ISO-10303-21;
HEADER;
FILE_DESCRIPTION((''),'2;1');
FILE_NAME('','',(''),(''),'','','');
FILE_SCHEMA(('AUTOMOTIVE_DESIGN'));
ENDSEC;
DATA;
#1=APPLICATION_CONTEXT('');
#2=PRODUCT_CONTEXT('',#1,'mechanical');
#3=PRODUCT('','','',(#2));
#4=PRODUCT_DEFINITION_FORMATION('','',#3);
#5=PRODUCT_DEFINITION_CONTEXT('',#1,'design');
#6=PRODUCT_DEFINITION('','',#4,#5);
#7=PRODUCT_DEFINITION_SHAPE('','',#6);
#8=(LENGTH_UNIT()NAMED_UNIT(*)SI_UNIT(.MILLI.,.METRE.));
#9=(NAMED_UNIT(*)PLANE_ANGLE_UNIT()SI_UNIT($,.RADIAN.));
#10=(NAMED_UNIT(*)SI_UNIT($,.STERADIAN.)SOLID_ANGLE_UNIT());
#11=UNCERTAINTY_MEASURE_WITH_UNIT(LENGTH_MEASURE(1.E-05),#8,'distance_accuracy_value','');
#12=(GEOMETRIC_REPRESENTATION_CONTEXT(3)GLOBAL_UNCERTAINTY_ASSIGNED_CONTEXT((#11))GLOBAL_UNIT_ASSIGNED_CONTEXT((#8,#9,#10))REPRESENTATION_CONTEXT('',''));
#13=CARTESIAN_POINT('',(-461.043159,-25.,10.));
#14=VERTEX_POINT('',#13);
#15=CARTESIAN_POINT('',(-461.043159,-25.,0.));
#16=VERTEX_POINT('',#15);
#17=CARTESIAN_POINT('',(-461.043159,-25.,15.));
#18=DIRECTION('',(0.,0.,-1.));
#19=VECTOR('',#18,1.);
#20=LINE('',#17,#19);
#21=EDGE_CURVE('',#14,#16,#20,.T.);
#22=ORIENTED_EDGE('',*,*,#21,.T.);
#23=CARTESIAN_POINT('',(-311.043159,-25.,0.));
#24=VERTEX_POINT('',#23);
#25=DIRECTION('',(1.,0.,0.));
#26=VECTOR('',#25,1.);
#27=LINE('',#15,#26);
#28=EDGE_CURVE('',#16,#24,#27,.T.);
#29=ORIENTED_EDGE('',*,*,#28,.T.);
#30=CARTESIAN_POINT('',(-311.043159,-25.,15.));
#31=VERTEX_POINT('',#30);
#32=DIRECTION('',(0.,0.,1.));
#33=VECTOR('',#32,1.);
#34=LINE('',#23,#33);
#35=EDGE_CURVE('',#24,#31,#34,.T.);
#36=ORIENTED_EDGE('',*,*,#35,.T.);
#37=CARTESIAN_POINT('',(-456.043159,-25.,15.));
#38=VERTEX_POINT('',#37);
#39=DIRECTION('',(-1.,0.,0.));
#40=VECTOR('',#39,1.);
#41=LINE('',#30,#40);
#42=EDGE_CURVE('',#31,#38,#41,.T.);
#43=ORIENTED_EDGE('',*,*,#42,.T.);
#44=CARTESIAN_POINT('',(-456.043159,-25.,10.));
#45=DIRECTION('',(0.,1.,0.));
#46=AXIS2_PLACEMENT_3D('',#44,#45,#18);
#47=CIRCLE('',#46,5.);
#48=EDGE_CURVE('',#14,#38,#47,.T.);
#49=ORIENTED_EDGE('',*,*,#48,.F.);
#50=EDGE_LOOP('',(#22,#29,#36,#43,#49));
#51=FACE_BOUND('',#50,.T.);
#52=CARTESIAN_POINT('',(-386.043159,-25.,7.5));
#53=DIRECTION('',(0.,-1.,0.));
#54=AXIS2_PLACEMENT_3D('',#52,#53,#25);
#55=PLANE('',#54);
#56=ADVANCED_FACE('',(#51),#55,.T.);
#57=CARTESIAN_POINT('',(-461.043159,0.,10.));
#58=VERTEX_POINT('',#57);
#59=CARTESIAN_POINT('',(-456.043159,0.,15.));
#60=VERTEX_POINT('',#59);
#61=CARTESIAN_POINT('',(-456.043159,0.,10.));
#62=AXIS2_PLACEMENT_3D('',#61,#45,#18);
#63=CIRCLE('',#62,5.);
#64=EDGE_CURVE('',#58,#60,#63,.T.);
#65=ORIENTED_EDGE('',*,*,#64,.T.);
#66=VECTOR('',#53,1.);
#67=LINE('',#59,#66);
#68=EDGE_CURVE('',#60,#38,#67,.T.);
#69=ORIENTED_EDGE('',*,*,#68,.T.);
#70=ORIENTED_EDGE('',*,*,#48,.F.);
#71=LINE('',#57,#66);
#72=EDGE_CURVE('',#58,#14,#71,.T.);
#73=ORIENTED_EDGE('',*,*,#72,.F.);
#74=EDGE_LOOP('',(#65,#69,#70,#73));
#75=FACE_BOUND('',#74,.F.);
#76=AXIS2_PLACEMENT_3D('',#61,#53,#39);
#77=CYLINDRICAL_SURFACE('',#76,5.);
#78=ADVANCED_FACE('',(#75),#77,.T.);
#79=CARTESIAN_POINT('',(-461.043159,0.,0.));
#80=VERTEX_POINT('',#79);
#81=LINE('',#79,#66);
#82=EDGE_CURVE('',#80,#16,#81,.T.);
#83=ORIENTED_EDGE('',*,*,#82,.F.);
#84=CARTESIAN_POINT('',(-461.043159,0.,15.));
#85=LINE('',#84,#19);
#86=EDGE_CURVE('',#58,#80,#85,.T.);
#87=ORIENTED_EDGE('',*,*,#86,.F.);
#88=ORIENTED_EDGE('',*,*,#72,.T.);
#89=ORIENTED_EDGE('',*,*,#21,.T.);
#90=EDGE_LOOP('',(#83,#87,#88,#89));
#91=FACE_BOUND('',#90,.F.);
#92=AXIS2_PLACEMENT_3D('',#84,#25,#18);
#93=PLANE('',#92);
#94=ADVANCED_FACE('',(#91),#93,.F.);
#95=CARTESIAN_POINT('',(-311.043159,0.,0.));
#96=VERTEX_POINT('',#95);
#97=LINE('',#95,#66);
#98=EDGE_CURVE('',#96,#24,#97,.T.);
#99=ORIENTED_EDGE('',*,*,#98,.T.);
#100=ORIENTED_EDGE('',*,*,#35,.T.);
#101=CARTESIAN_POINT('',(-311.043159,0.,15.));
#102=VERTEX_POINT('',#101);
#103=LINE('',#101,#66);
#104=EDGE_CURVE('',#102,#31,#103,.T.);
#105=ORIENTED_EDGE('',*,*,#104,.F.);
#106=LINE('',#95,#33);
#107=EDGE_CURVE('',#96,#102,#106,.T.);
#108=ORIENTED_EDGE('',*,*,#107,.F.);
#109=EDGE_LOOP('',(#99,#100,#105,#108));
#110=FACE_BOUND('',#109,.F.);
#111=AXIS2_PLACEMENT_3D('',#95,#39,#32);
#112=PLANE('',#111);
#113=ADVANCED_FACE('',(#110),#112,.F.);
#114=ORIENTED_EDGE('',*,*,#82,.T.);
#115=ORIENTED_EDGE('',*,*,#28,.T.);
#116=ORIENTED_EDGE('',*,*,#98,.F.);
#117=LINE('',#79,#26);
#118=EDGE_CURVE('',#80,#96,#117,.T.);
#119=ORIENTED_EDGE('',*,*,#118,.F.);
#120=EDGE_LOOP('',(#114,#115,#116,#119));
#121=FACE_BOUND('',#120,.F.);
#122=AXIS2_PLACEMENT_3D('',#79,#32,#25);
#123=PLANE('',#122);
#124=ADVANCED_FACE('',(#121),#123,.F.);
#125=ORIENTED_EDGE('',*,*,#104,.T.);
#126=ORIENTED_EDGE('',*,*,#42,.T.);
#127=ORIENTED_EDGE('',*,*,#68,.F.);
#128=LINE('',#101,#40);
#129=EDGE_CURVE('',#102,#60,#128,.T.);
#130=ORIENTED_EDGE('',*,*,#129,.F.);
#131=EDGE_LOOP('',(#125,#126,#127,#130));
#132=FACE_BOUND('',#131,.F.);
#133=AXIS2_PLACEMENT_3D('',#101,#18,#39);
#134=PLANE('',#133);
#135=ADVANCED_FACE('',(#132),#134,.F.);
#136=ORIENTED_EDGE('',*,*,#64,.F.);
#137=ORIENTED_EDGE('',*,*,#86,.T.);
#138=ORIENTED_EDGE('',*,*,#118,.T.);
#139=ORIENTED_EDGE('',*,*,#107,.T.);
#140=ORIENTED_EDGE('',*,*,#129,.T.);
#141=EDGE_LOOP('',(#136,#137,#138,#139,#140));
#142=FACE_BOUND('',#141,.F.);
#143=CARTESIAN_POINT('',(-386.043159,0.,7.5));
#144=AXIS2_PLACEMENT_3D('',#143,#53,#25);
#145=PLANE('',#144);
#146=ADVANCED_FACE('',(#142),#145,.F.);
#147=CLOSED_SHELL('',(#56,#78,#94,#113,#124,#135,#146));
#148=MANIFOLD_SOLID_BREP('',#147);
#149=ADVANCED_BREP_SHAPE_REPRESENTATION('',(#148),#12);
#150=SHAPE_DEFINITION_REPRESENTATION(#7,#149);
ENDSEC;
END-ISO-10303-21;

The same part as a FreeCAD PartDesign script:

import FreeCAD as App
import Part
import Sketcher

V = App.Vector


def edges_at(feature, points):
    """Names of the edges that pass closest to the given points."""
    edges = feature.Shape.Edges
    near = lambda p: min(range(len(edges)), key=lambda i: edges[i].distToShape(Part.Vertex(*p))[0])
    return sorted({f"Edge{near(p) + 1}" for p in points})

doc = App.newDocument("Part")
body = doc.addObject("PartDesign::Body", "Body")

# Sketch on XZ plane
sketch1 = body.newObject("Sketcher::SketchObject", "Sketch")
sketch1.AttachmentSupport = (doc.getObject("XZ_Plane"), [""])
sketch1.MapMode = "FlatFace"
sketch1.addGeometry([
    Part.LineSegment(V(-461, 15, 0), V(-461, 0, 0)),
    Part.LineSegment(V(-461, 0, 0), V(-311, 0, 0)),
    Part.LineSegment(V(-311, 0, 0), V(-311, 15, 0)),
    Part.LineSegment(V(-311, 15, 0), V(-461, 15, 0)),
], False)
sketch1.addConstraint([
    Sketcher.Constraint("Coincident", 0, 2, 1, 1),
    Sketcher.Constraint("Coincident", 1, 2, 2, 1),
    Sketcher.Constraint("Coincident", 2, 2, 3, 1),
    Sketcher.Constraint("Coincident", 3, 2, 0, 1),
    Sketcher.Constraint("Vertical", 0),
    Sketcher.Constraint("Horizontal", 1),
    Sketcher.Constraint("Vertical", 2),
    Sketcher.Constraint("Horizontal", 3),
    Sketcher.Constraint("PointOnObject", 0, 2, -1),
    Sketcher.Constraint("DistanceX", 1, 1, 1, 2, 150.0),
    Sketcher.Constraint("DistanceY", 0, 2, 0, 1, 15.0),
    Sketcher.Constraint("DistanceX", 0, 2, -1, 1, 461.043159),
])
pad1 = body.newObject("PartDesign::Pad", "Pad")
pad1.Profile = sketch1
pad1.Length = 25
doc.recompute()

fillet = body.newObject("PartDesign::Fillet", "Fillet")
fillet.Base = (pad1, edges_at(pad1, [(-461.043, -12.5, 15)]))
fillet.Radius = 5

doc.recompute()
